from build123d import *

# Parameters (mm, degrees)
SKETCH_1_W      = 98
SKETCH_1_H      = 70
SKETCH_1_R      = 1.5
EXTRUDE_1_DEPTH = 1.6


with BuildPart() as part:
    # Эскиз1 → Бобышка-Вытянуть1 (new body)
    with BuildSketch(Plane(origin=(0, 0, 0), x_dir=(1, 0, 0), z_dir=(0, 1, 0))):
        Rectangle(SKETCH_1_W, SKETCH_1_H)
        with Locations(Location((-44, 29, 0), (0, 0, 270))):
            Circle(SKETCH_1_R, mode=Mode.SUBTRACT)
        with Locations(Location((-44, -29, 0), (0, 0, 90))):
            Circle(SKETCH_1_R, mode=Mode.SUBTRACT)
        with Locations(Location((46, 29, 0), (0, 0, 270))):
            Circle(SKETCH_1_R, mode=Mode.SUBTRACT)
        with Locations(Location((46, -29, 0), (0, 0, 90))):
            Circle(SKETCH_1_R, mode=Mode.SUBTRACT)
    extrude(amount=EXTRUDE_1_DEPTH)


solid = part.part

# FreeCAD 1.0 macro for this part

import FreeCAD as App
import Part
import Sketcher
from FreeCAD import Vector

doc = App.newDocument("Part")
body = doc.addObject("PartDesign::Body", "Body")

sketch1 = body.newObject("Sketcher::SketchObject", "Sketch")
sketch1.AttachmentSupport = (doc.getObject("XZ_Plane"), [""])
sketch1.MapMode = "FlatFace"
sketch1.addGeometry(Part.LineSegment(Vector(-49, -35, 0), Vector(-49, 35, 0)), False)
sketch1.addGeometry(Part.LineSegment(Vector(-49, 35, 0), Vector(49, 35, 0)), False)
sketch1.addGeometry(Part.LineSegment(Vector(49, 35, 0), Vector(49, -35, 0)), False)
sketch1.addGeometry(Part.LineSegment(Vector(49, -35, 0), Vector(-49, -35, 0)), False)
sketch1.addGeometry(Part.Circle(Vector(-44, 29, 0), Vector(0, 0, 1), 1.5), False)
sketch1.addGeometry(Part.Circle(Vector(46, 29, 0), Vector(0, 0, 1), 1.5), False)
sketch1.addGeometry(Part.Circle(Vector(-44, -29, 0), Vector(0, 0, 1), 1.5), False)
sketch1.addGeometry(Part.Circle(Vector(46, -29, 0), Vector(0, 0, 1), 1.5), False)
sketch1.addConstraint(Sketcher.Constraint("Coincident", 0, 2, 1, 1))
sketch1.addConstraint(Sketcher.Constraint("Coincident", 1, 2, 2, 1))
sketch1.addConstraint(Sketcher.Constraint("Coincident", 2, 2, 3, 1))
sketch1.addConstraint(Sketcher.Constraint("Coincident", 3, 2, 0, 1))
sketch1.addConstraint(Sketcher.Constraint("Vertical", 0))
sketch1.addConstraint(Sketcher.Constraint("Horizontal", 1))
sketch1.addConstraint(Sketcher.Constraint("Vertical", 2))
sketch1.addConstraint(Sketcher.Constraint("Horizontal", 3))
sketch1.addConstraint(Sketcher.Constraint("Equal", 4, 5))
sketch1.addConstraint(Sketcher.Constraint("Equal", 5, 6))
sketch1.addConstraint(Sketcher.Constraint("Equal", 6, 7))
sketch1.addConstraint(Sketcher.Constraint("Symmetric", 0, 2, 2, 2, -1, 1))
sketch1.addConstraint(Sketcher.Constraint("Symmetric", 4, 3, 6, 3, -1))
sketch1.addConstraint(Sketcher.Constraint("Symmetric", 5, 3, 7, 3, -1))
sketch1.addConstraint(Sketcher.Constraint("Horizontal", 4, 3, 5, 3))
sketch1.addConstraint(Sketcher.Constraint("Diameter", 4, 3.0))
sketch1.addConstraint(Sketcher.Constraint("DistanceX", 1, 1, 1, 2, 98.0))
sketch1.addConstraint(Sketcher.Constraint("DistanceY", 0, 1, 0, 2, 70.0))
sketch1.addConstraint(Sketcher.Constraint("DistanceX", 4, 3, -1, 1, 44.0))
sketch1.addConstraint(Sketcher.Constraint("DistanceY", -1, 1, 4, 3, 29.0))
sketch1.addConstraint(Sketcher.Constraint("DistanceX", -1, 1, 5, 3, 46.0))
pad1 = body.newObject("PartDesign::Pad", "Pad")
pad1.Profile = sketch1
pad1.Length = 1.6
pad1.Reversed = True

doc.recompute()
